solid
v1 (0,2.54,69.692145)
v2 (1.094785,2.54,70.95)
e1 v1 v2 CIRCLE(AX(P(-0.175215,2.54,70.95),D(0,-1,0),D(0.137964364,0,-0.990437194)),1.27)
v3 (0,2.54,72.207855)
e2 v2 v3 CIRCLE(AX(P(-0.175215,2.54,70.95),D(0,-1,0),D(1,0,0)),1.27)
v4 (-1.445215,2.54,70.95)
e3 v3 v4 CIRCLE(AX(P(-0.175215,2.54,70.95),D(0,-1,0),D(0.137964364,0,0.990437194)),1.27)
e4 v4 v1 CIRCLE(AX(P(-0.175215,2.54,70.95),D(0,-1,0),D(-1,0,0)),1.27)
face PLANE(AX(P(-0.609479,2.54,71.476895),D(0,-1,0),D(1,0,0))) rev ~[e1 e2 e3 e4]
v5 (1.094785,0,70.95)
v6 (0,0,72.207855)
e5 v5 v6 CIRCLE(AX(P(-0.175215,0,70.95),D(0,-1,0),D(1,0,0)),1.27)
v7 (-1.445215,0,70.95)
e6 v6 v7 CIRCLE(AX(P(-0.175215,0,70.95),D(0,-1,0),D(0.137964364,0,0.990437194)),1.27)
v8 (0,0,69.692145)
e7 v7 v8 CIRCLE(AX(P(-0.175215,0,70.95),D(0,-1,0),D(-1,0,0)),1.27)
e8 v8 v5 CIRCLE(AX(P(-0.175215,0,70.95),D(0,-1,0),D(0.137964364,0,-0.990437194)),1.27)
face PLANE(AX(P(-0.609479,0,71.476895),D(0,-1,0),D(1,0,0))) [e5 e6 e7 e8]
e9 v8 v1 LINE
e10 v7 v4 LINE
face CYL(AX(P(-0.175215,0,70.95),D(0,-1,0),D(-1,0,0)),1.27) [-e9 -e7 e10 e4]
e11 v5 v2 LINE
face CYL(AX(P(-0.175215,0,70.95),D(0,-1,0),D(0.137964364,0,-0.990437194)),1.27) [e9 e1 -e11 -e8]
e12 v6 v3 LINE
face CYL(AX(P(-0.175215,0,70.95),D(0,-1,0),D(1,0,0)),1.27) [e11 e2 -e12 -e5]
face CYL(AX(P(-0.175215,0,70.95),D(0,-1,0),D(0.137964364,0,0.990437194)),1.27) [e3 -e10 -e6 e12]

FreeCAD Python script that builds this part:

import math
import FreeCAD as App
import Part
import Sketcher

V = App.Vector
Q = App.Units.Quantity

doc = App.newDocument("Part")
params = doc.addObject("Spreadsheet::Sheet", "Params")
for row, (alias, value) in enumerate([
    ("sketch1_radius", "0.05 in"),
    ("pad1_length", "0.1 in"),
], start=1):
    params.set(f"A{row}", alias)
    params.set(f"B{row}", "=" + value)
    params.setAlias(f"B{row}", alias)

body = doc.addObject("PartDesign::Body", "Body")

sketch1 = body.newObject("Sketcher::SketchObject", "Sketch")
sketch1.AttachmentSupport = (doc.getObject("XZ_Plane"), [""])
sketch1.MapMode = "FlatFace"
sketch1.addGeometry(Part.ArcOfCircle(Part.Circle(V(-0.2, 70.9, 0), V(0, 0, 1), 1.3), math.radians(82), math.radians(180)), False)
sketch1.addGeometry(Part.ArcOfCircle(Part.Circle(V(-0.2, 70.9, 0), V(0, 0, 1), 1.3), math.radians(180), math.radians(278)), False)
sketch1.addGeometry(Part.ArcOfCircle(Part.Circle(V(-0.2, 70.9, 0), V(0, 0, 1), 1.3), math.radians(-82), math.radians(0)), False)
sketch1.addGeometry(Part.ArcOfCircle(Part.Circle(V(-0.2, 70.9, 0), V(0, 0, 1), 1.3), math.radians(0), math.radians(82)), False)
sketch1.addConstraint(Sketcher.Constraint("Tangent", 0, 2, 1, 1))
sketch1.addConstraint(Sketcher.Constraint("Tangent", 1, 2, 2, 1))
sketch1.addConstraint(Sketcher.Constraint("Tangent", 2, 2, 3, 1))
sketch1.addConstraint(Sketcher.Constraint("Tangent", 3, 2, 0, 1))
sketch1.addConstraint(Sketcher.Constraint("Equal", 0, 1))
sketch1.addConstraint(Sketcher.Constraint("PointOnObject", 1, 2, -2))
sketch1.addConstraint(Sketcher.Constraint("PointOnObject", 3, 2, -2))
sketch1.addConstraint(Sketcher.Constraint("Horizontal", 3, 3, 0, 2))
sketch1.addConstraint(Sketcher.Constraint("Horizontal", 0, 2, 2, 2))
sketch1.addConstraint(Sketcher.Constraint("Radius", 0, Q("0.05 in")))
sketch1.addConstraint(Sketcher.Constraint("DistanceY", -1, 1, 0, 3, Q("70.95 mm")))
sketch1.addConstraint(Sketcher.Constraint("DistanceX", 0, 3, -1, 1, Q("0.175215 mm")))
sketch1.setExpression("Constraints[9]", "Params.sketch1_radius")
pad1 = body.newObject("PartDesign::Pad", "Pad")
pad1.Profile = sketch1
pad1.setExpression("Length", "Params.pad1_length")
pad1.Reversed = True

doc.recompute()
